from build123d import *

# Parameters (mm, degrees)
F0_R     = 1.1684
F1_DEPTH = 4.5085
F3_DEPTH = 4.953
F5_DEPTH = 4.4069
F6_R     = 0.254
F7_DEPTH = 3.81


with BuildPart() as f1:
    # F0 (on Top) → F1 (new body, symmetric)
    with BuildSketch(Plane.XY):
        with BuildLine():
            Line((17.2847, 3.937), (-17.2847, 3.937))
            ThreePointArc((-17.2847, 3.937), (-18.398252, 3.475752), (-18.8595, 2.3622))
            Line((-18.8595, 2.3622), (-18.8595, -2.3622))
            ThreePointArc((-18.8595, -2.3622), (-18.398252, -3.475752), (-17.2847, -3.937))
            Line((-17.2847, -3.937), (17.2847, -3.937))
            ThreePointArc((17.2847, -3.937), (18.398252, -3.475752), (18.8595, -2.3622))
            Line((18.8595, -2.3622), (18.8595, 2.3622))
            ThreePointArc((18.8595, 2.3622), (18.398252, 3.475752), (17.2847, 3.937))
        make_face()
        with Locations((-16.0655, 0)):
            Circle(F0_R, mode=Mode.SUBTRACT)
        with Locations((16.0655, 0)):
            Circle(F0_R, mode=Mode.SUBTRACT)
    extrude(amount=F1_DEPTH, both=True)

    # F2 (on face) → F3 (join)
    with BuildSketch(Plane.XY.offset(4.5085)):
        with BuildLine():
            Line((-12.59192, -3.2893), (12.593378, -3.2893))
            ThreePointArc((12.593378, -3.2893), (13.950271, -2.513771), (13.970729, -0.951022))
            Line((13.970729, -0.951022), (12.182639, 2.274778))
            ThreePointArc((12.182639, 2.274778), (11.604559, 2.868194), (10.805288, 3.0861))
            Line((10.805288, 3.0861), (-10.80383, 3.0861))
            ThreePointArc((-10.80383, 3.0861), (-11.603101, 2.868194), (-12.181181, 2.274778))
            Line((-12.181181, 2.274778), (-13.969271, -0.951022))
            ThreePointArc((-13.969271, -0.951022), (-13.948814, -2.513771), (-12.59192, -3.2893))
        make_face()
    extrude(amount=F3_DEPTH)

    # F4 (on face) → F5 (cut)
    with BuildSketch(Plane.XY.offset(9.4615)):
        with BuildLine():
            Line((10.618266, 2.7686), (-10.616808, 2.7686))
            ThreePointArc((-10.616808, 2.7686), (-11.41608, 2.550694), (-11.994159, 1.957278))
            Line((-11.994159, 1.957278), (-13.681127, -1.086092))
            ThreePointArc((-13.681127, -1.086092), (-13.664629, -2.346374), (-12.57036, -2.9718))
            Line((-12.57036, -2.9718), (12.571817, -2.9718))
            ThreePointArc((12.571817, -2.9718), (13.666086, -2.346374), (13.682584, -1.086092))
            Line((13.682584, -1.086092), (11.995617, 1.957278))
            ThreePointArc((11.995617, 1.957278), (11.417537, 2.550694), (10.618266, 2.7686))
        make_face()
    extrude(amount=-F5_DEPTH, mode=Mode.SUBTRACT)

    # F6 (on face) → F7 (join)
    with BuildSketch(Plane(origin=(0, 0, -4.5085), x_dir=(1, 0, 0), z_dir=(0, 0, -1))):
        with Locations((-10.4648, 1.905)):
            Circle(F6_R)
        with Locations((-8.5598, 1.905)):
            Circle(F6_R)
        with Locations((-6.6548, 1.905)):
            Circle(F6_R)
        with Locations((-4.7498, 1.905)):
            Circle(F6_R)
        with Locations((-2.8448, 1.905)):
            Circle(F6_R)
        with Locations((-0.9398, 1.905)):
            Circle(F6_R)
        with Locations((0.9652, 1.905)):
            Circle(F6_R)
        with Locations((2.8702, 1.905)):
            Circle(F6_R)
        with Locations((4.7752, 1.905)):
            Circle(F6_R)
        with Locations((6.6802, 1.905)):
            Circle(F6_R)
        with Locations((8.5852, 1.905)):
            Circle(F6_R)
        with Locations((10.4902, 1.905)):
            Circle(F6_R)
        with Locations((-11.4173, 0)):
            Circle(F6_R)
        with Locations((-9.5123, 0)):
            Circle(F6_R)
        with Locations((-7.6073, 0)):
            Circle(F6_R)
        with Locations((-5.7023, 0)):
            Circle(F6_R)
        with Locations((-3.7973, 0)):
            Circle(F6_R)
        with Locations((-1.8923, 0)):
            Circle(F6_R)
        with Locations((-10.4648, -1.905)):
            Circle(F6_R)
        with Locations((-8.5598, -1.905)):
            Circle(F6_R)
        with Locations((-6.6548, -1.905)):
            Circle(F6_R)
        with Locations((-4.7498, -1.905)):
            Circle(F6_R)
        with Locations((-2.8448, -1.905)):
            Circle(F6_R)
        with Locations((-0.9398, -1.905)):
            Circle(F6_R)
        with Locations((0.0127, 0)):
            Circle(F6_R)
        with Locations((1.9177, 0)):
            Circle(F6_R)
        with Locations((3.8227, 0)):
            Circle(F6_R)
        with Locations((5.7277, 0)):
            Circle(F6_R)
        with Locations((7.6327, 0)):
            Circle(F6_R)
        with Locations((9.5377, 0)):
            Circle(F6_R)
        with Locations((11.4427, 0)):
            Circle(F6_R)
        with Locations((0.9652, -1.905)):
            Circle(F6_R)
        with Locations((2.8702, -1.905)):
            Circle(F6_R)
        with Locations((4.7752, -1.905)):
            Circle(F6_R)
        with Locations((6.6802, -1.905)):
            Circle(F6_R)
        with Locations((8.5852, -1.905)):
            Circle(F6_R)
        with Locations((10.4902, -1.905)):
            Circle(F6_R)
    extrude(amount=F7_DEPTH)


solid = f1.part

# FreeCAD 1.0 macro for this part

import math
import FreeCAD as App
import Part
import Sketcher
from FreeCAD import Vector
Q = App.Units.Quantity

doc = App.newDocument("Part")
params = doc.addObject("Spreadsheet::Sheet", "Params")
for row, (alias, value) in enumerate([
    ("sketch1_diameter", "0.092 in"),
    ("sketch1_radius", "0.062 in"),
    ("sketch1_width", "1.361 in"),
    ("sketch1_height", "0.186 in"),
    ("pad1_length", "0.355 in"),
    ("sketch2_radius", "0.062 in"),
    ("pad2_length", "0.195 in"),
    ("sketch3_radius", "0.05 in"),
    ("sketch3_radius2", "0.0619998 in"),
    ("sketch3_radius3", "0.0619999 in"),
    ("pocket1_length", "0.1735 in"),
    ("sketch4_diameter", "0.02 in"),
    ("pad3_length", "0.15 in"),
], start=1):
    params.set(f"A{row}", alias)
    params.set(f"B{row}", "=" + value)
    params.setAlias(f"B{row}", alias)

body = doc.addObject("PartDesign::Body", "Body")

# Sketch on XY plane
sketch1 = doc.addObject("Sketcher::SketchObject", "Sketch")
body.addObject(sketch1)
sketch1.AttachmentSupport = (doc.XY_Plane, [""])
sketch1.MapMode = "FlatFace"
sketch1.addGeometry([
    Part.LineSegment(Vector(17.3, 3.9, 0), Vector(-17.3, 3.9, 0)),  # 0
    Part.ArcOfCircle(Part.Circle(Vector(-17.3, 2.4, 0), Vector(0, 0, 1), 1.6), math.radians(90), math.radians(180)),  # 1
    Part.LineSegment(Vector(-18.9, 2.4, 0), Vector(-18.9, -2.4, 0)),  # 2
    Part.ArcOfCircle(Part.Circle(Vector(-17.3, -2.4, 0), Vector(0, 0, 1), 1.6), math.radians(180), math.radians(270)),  # 3
    Part.LineSegment(Vector(-17.3, -3.9, 0), Vector(17.3, -3.9, 0)),  # 4
    Part.ArcOfCircle(Part.Circle(Vector(17.3, -2.4, 0), Vector(0, 0, 1), 1.6), math.radians(-90), math.radians(0)),  # 5
    Part.LineSegment(Vector(18.9, -2.4, 0), Vector(18.9, 2.4, 0)),  # 6
    Part.ArcOfCircle(Part.Circle(Vector(17.3, 2.4, 0), Vector(0, 0, 1), 1.6), math.radians(0), math.radians(90)),  # 7
    Part.Circle(Vector(-16.1, 0, 0), Vector(0, 0, 1), 1.2),  # 8
    Part.Circle(Vector(16.1, 0, 0), Vector(0, 0, 1), 1.2),  # 9
], False)
sketch1.addConstraint([
    Sketcher.Constraint("Tangent", 0, 2, 1, 1),
    Sketcher.Constraint("Tangent", 1, 2, 2, 1),
    Sketcher.Constraint("Tangent", 2, 2, 3, 1),
    Sketcher.Constraint("Tangent", 3, 2, 4, 1),
    Sketcher.Constraint("Tangent", 4, 2, 5, 1),
    Sketcher.Constraint("Tangent", 5, 2, 6, 1),
    Sketcher.Constraint("Tangent", 6, 2, 7, 1),
    Sketcher.Constraint("Tangent", 7, 2, 0, 1),
    Sketcher.Constraint("Horizontal", 0),
    Sketcher.Constraint("Vertical", 2),
    Sketcher.Constraint("Horizontal", 4),
    Sketcher.Constraint("Vertical", 6),
    Sketcher.Constraint("Equal", 1, 3),
    Sketcher.Constraint("Equal", 3, 5),
    Sketcher.Constraint("Equal", 5, 7),
    Sketcher.Constraint("Equal", 8, 9),
    Sketcher.Constraint("Symmetric", 1, 3, 5, 3, -1, 1),
    Sketcher.Constraint("Symmetric", 8, 3, 9, 3, -1, 1),
    Sketcher.Constraint("PointOnObject", 8, 3, -1),
    Sketcher.Constraint("Diameter", 8, Q("0.092 in")),
    Sketcher.Constraint("Radius", 1, Q("0.062 in")),
    Sketcher.Constraint("DistanceX", 0, 2, 0, 1, Q("1.361 in")),
    Sketcher.Constraint("DistanceY", 2, 2, 2, 1, Q("0.186 in")),
    Sketcher.Constraint("DistanceX", 1, 2, 8, 3, Q("0.11 in")),
])
sketch1.setExpression("Constraints[19]", "Params.sketch1_diameter")
sketch1.setExpression("Constraints[20]", "Params.sketch1_radius")
sketch1.setExpression("Constraints[21]", "Params.sketch1_width")
sketch1.setExpression("Constraints[22]", "Params.sketch1_height")
pad1 = doc.addObject("PartDesign::Pad", "Pad")
body.addObject(pad1)
pad1.Profile = sketch1
pad1.setExpression("Length", "Params.pad1_length")
pad1.Midplane = True

# Sketch on XY plane
sketch2 = doc.addObject("Sketcher::SketchObject", "Sketch001")
body.addObject(sketch2)
sketch2.AttachmentSupport = (doc.XY_Plane, [""])
sketch2.MapMode = "FlatFace"
sketch2.AttachmentOffset = App.Placement(Vector(0, 0, 0.1775 * 25.4), App.Rotation())
sketch2.addGeometry([
    Part.LineSegment(Vector(-12.6, -3.3, 0), Vector(12.6, -3.3, 0)),  # 0
    Part.ArcOfCircle(Part.Circle(Vector(12.6, -1.7, 0), Vector(0, 0, 1), 1.6), math.radians(-90), math.radians(29)),  # 1
    Part.LineSegment(Vector(14, -1, 0), Vector(12.2, 2.3, 0)),  # 2
    Part.ArcOfCircle(Part.Circle(Vector(10.8, 1.5, 0), Vector(0, 0, 1), 1.6), math.radians(29), math.radians(90)),  # 3
    Part.LineSegment(Vector(10.8, 3.1, 0), Vector(-10.8, 3.1, 0)),  # 4
    Part.ArcOfCircle(Part.Circle(Vector(-10.8, 1.5, 0), Vector(0, 0, 1), 1.6), math.radians(90), math.radians(151)),  # 5
    Part.LineSegment(Vector(-12.2, 2.3, 0), Vector(-14, -1, 0)),  # 6
    Part.ArcOfCircle(Part.Circle(Vector(-12.6, -1.7, 0), Vector(0, 0, 1), 1.6), math.radians(151), math.radians(270)),  # 7
], False)
sketch2.addConstraint([
    Sketcher.Constraint("Tangent", 0, 2, 1, 1),
    Sketcher.Constraint("Tangent", 1, 2, 2, 1),
    Sketcher.Constraint("Tangent", 2, 2, 3, 1),
    Sketcher.Constraint("Tangent", 3, 2, 4, 1),
    Sketcher.Constraint("Tangent", 4, 2, 5, 1),
    Sketcher.Constraint("Tangent", 5, 2, 6, 1),
    Sketcher.Constraint("Tangent", 6, 2, 7, 1),
    Sketcher.Constraint("Tangent", 7, 2, 0, 1),
    Sketcher.Constraint("Horizontal", 0),
    Sketcher.Constraint("Horizontal", 4),
    Sketcher.Constraint("Equal", 3, 5),
    Sketcher.Constraint("Equal", 5, 7),
    Sketcher.Constraint("Horizontal", 1, 3, 7, 3),
    Sketcher.Constraint("Horizontal", 2, 2, 5, 2),
    Sketcher.Constraint("Angle", 2, Q("118.999998 deg")),
    Sketcher.Constraint("Radius", 1, Q("0.062 in")),
    Sketcher.Constraint("DistanceY", 1, 3, 3, 3, Q("0.127 in")),
    Sketcher.Constraint("DistanceY", 1, 3, -1, 1, Q("0.0675 in")),
    Sketcher.Constraint("DistanceX", 7, 3, 0, 2, Q("25.185298 mm")),
    Sketcher.Constraint("DistanceX", -1, 1, 3, 3, Q("10.805289 mm")),
])
sketch2.setExpression("Constraints[15]", "Params.sketch2_radius")
pad2 = doc.addObject("PartDesign::Pad", "Pad001")
body.addObject(pad2)
pad2.Profile = sketch2
pad2.setExpression("Length", "Params.pad2_length")

# Sketch on XY plane
sketch3 = doc.addObject("Sketcher::SketchObject", "Sketch002")
body.addObject(sketch3)
sketch3.AttachmentSupport = (doc.XY_Plane, [""])
sketch3.MapMode = "FlatFace"
sketch3.AttachmentOffset = App.Placement(Vector(0, 0, 0.3725 * 25.4), App.Rotation())
sketch3.addGeometry([
    Part.LineSegment(Vector(10.6, 2.8, 0), Vector(-10.6, 2.8, 0)),  # 0
    Part.ArcOfCircle(Part.Circle(Vector(-10.6, 1.2, 0), Vector(0, 0, 1), 1.6), math.radians(90), math.radians(151)),  # 1
    Part.LineSegment(Vector(-12, 2, 0), Vector(-13.7, -1.1, 0)),  # 2
    Part.ArcOfCircle(Part.Circle(Vector(-12.6, -1.7, 0), Vector(0, 0, 1), 1.3), math.radians(151), math.radians(270)),  # 3
    Part.LineSegment(Vector(-12.6, -3, 0), Vector(12.6, -3, 0)),  # 4
    Part.ArcOfCircle(Part.Circle(Vector(12.6, -1.7, 0), Vector(0, 0, 1), 1.3), math.radians(-90), math.radians(29)),  # 5
    Part.LineSegment(Vector(13.7, -1.1, 0), Vector(12, 2, 0)),  # 6
    Part.ArcOfCircle(Part.Circle(Vector(10.6, 1.2, 0), Vector(0, 0, 1), 1.6), math.radians(29), math.radians(90)),  # 7
], False)
sketch3.addConstraint([
    Sketcher.Constraint("Tangent", 0, 2, 1, 1),
    Sketcher.Constraint("Coincident", 1, 2, 2, 1),
    Sketcher.Constraint("Tangent", 2, 2, 3, 1),
    Sketcher.Constraint("Tangent", 3, 2, 4, 1),
    Sketcher.Constraint("Tangent", 4, 2, 5, 1),
    Sketcher.Constraint("Tangent", 5, 2, 6, 1),
    Sketcher.Constraint("Tangent", 6, 2, 7, 1),
    Sketcher.Constraint("Tangent", 7, 2, 0, 1),
    Sketcher.Constraint("Horizontal", 0),
    Sketcher.Constraint("Horizontal", 4),
    Sketcher.Constraint("Equal", 3, 5),
    Sketcher.Constraint("Horizontal", 2, 2, 5, 2),
    Sketcher.Constraint("Horizontal", 1, 2, 6, 2),
    Sketcher.Constraint("Radius", 3, Q("0.05 in")),
    Sketcher.Constraint("Angle", 2, Q("-119.000007 deg")),
    Sketcher.Constraint("Radius", 1, Q("0.0619998 in")),
    Sketcher.Constraint("Radius", 7, Q("0.0619999 in")),
    Sketcher.Constraint("DistanceY", -1, 1, 1, 3, Q("0.0470002 in")),
    Sketcher.Constraint("DistanceY", 3, 3, -1, 1, Q("0.067 in")),
    Sketcher.Constraint("DistanceX", 0, 2, 0, 1, Q("21.235074 mm")),
    Sketcher.Constraint("DistanceX", 1, 3, -1, 1, Q("10.616811 mm")),
])
sketch3.setExpression("Constraints[13]", "Params.sketch3_radius")
sketch3.setExpression("Constraints[15]", "Params.sketch3_radius2")
sketch3.setExpression("Constraints[16]", "Params.sketch3_radius3")
pocket1 = doc.addObject("PartDesign::Pocket", "Pocket")
body.addObject(pocket1)
pocket1.Profile = sketch3
pocket1.setExpression("Length", "Params.pocket1_length")

# Sketch on XY plane
sketch4 = doc.addObject("Sketcher::SketchObject", "Sketch003")
body.addObject(sketch4)
sketch4.AttachmentSupport = (doc.XY_Plane, [""])
sketch4.MapMode = "FlatFace"
sketch4.AttachmentOffset = App.Placement(Vector(0, 0, -0.1775 * 25.4), App.Rotation())
sketch4.addGeometry([
    Part.Circle(Vector(-10.46, -1.91, 0), Vector(0, 0, 1), 0.25),  # 0
    Part.Circle(Vector(-8.56, -1.91, 0), Vector(0, 0, 1), 0.25),  # 1
    Part.Circle(Vector(-6.65, -1.91, 0), Vector(0, 0, 1), 0.25),  # 2
    Part.Circle(Vector(-4.75, -1.91, 0), Vector(0, 0, 1), 0.25),  # 3
    Part.Circle(Vector(-2.84, -1.91, 0), Vector(0, 0, 1), 0.25),  # 4
    Part.Circle(Vector(-0.94, -1.91, 0), Vector(0, 0, 1), 0.25),  # 5
    Part.Circle(Vector(0.97, -1.91, 0), Vector(0, 0, 1), 0.25),  # 6
    Part.Circle(Vector(2.87, -1.91, 0), Vector(0, 0, 1), 0.25),  # 7
    Part.Circle(Vector(4.78, -1.91, 0), Vector(0, 0, 1), 0.25),  # 8
    Part.Circle(Vector(6.68, -1.91, 0), Vector(0, 0, 1), 0.25),  # 9
    Part.Circle(Vector(8.59, -1.91, 0), Vector(0, 0, 1), 0.25),  # 10
    Part.Circle(Vector(10.49, -1.91, 0), Vector(0, 0, 1), 0.25),  # 11
    Part.Circle(Vector(-11.42, 0, 0), Vector(0, 0, 1), 0.25),  # 12
    Part.Circle(Vector(-9.51, 0, 0), Vector(0, 0, 1), 0.25),  # 13
    Part.Circle(Vector(-7.61, 0, 0), Vector(0, 0, 1), 0.25),  # 14
    Part.Circle(Vector(-5.7, 0, 0), Vector(0, 0, 1), 0.25),  # 15
    Part.Circle(Vector(-3.8, 0, 0), Vector(0, 0, 1), 0.25),  # 16
    Part.Circle(Vector(-1.89, 0, 0), Vector(0, 0, 1), 0.25),  # 17
    Part.Circle(Vector(-10.46, 1.91, 0), Vector(0, 0, 1), 0.25),  # 18
    Part.Circle(Vector(-8.56, 1.91, 0), Vector(0, 0, 1), 0.25),  # 19
    Part.Circle(Vector(-6.65, 1.91, 0), Vector(0, 0, 1), 0.25),  # 20
    Part.Circle(Vector(-4.75, 1.91, 0), Vector(0, 0, 1), 0.25),  # 21
    Part.Circle(Vector(-2.84, 1.91, 0), Vector(0, 0, 1), 0.25),  # 22
    Part.Circle(Vector(-0.94, 1.91, 0), Vector(0, 0, 1), 0.25),  # 23
    Part.Circle(Vector(0.01, 0, 0), Vector(0, 0, 1), 0.25),  # 24
    Part.Circle(Vector(1.92, 0, 0), Vector(0, 0, 1), 0.25),  # 25
    Part.Circle(Vector(3.82, 0, 0), Vector(0, 0, 1), 0.25),  # 26
    Part.Circle(Vector(5.73, 0, 0), Vector(0, 0, 1), 0.25),  # 27
    Part.Circle(Vector(7.63, 0, 0), Vector(0, 0, 1), 0.25),  # 28
    Part.Circle(Vector(9.54, 0, 0), Vector(0, 0, 1), 0.25),  # 29
    Part.Circle(Vector(11.44, 0, 0), Vector(0, 0, 1), 0.25),  # 30
    Part.Circle(Vector(0.97, 1.91, 0), Vector(0, 0, 1), 0.25),  # 31
    Part.Circle(Vector(2.87, 1.91, 0), Vector(0, 0, 1), 0.25),  # 32
    Part.Circle(Vector(4.78, 1.91, 0), Vector(0, 0, 1), 0.25),  # 33
    Part.Circle(Vector(6.68, 1.91, 0), Vector(0, 0, 1), 0.25),  # 34
    Part.Circle(Vector(8.59, 1.91, 0), Vector(0, 0, 1), 0.25),  # 35
    Part.Circle(Vector(10.49, 1.91, 0), Vector(0, 0, 1), 0.25),  # 36
], False)
sketch4.addConstraint([
    Sketcher.Constraint("Equal", 0, 1),
    Sketcher.Constraint("Equal", 1, 2),
    Sketcher.Constraint("Equal", 2, 3),
    Sketcher.Constraint("Equal", 3, 4),
    Sketcher.Constraint("Equal", 4, 5),
    Sketcher.Constraint("Equal", 5, 6),
    Sketcher.Constraint("Equal", 6, 7),
    Sketcher.Constraint("Equal", 7, 8),
    Sketcher.Constraint("Equal", 8, 9),
    Sketcher.Constraint("Equal", 9, 10),
    Sketcher.Constraint("Equal", 10, 11),
    Sketcher.Constraint("Equal", 11, 12),
    Sketcher.Constraint("Equal", 12, 13),
    Sketcher.Constraint("Equal", 13, 14),
    Sketcher.Constraint("Equal", 14, 15),
    Sketcher.Constraint("Equal", 15, 16),
    Sketcher.Constraint("Equal", 16, 17),
    Sketcher.Constraint("Equal", 17, 18),
    Sketcher.Constraint("Equal", 18, 19),
    Sketcher.Constraint("Equal", 19, 20),
    Sketcher.Constraint("Equal", 20, 21),
    Sketcher.Constraint("Equal", 21, 22),
    Sketcher.Constraint("Equal", 22, 23),
    Sketcher.Constraint("Equal", 23, 24),
    Sketcher.Constraint("Equal", 24, 25),
    Sketcher.Constraint("Equal", 25, 26),
    Sketcher.Constraint("Equal", 26, 27),
    Sketcher.Constraint("Equal", 27, 28),
    Sketcher.Constraint("Equal", 28, 29),
    Sketcher.Constraint("Equal", 29, 30),
    Sketcher.Constraint("Equal", 30, 31),
    Sketcher.Constraint("Equal", 31, 32),
    Sketcher.Constraint("Equal", 32, 33),
    Sketcher.Constraint("Equal", 33, 34),
    Sketcher.Constraint("Equal", 34, 35),
    Sketcher.Constraint("Equal", 35, 36),
    Sketcher.Constraint("Symmetric", 0, 3, 18, 3, -1),
    Sketcher.Constraint("Symmetric", 1, 3, 19, 3, -1),
    Sketcher.Constraint("Symmetric", 2, 3, 20, 3, -1),
    Sketcher.Constraint("Symmetric", 3, 3, 21, 3, -1),
    Sketcher.Constraint("Symmetric", 4, 3, 22, 3, -1),
    Sketcher.Constraint("Symmetric", 5, 3, 23, 3, -1),
    Sketcher.Constraint("Symmetric", 6, 3, 31, 3, -1),
    Sketcher.Constraint("Symmetric", 7, 3, 32, 3, -1),
    Sketcher.Constraint("Symmetric", 8, 3, 33, 3, -1),
    Sketcher.Constraint("Symmetric", 9, 3, 34, 3, -1),
    Sketcher.Constraint("Symmetric", 10, 3, 35, 3, -1),
    Sketcher.Constraint("Symmetric", 11, 3, 36, 3, -1),
    Sketcher.Constraint("PointOnObject", 12, 3, -1),
    Sketcher.Constraint("PointOnObject", 13, 3, -1),
    Sketcher.Constraint("PointOnObject", 14, 3, -1),
    Sketcher.Constraint("PointOnObject", 15, 3, -1),
    Sketcher.Constraint("PointOnObject", 16, 3, -1),
    Sketcher.Constraint("PointOnObject", 17, 3, -1),
    Sketcher.Constraint("PointOnObject", 24, 3, -1),
    Sketcher.Constraint("PointOnObject", 25, 3, -1),
    Sketcher.Constraint("PointOnObject", 26, 3, -1),
    Sketcher.Constraint("PointOnObject", 27, 3, -1),
    Sketcher.Constraint("PointOnObject", 28, 3, -1),
    Sketcher.Constraint("PointOnObject", 29, 3, -1),
    Sketcher.Constraint("PointOnObject", 30, 3, -1),
    Sketcher.Constraint("Horizontal", 0, 3, 1, 3),
    Sketcher.Constraint("Horizontal", 1, 3, 2, 3),
    Sketcher.Constraint("Horizontal", 2, 3, 3, 3),
    Sketcher.Constraint("Horizontal", 3, 3, 4, 3),
    Sketcher.Constraint("Horizontal", 4, 3, 5, 3),
    Sketcher.Constraint("Horizontal", 5, 3, 6, 3),
    Sketcher.Constraint("Horizontal", 6, 3, 7, 3),
    Sketcher.Constraint("Horizontal", 7, 3, 8, 3),
    Sketcher.Constraint("Horizontal", 8, 3, 9, 3),
    Sketcher.Constraint("Horizontal", 9, 3, 10, 3),
    Sketcher.Constraint("Horizontal", 10, 3, 11, 3),
    Sketcher.Constraint("Diameter", 0, Q("0.02 in")),
    Sketcher.Constraint("DistanceX", 0, 3, 4, 3, Q("0.3 in")),
    Sketcher.Constraint("DistanceX", 1, 3, 5, 3, Q("0.3 in")),
    Sketcher.Constraint("DistanceX", 2, 3, 6, 3, Q("0.3 in")),
    Sketcher.Constraint("DistanceX", 3, 3, 7, 3, Q("0.3 in")),
    Sketcher.Constraint("DistanceX", 4, 3, 8, 3, Q("0.3 in")),
    Sketcher.Constraint("DistanceX", 5, 3, 9, 3, Q("0.3 in")),
    Sketcher.Constraint("DistanceX", 6, 3, 10, 3, Q("0.3 in")),
    Sketcher.Constraint("DistanceX", 7, 3, 11, 3, Q("0.3 in")),
    Sketcher.Constraint("DistanceX", 0, 3, 2, 3, Q("0.15 in")),
    Sketcher.Constraint("DistanceX", 1, 3, 3, 3, Q("0.15 in")),
    Sketcher.Constraint("DistanceY", 0, 3, 18, 3, Q("0.15 in")),
    Sketcher.Constraint("DistanceX", 27, 3, 29, 3, Q("0.15 in")),
    Sketcher.Constraint("DistanceX", 28, 3, 30, 3, Q("0.15 in")),
    Sketcher.Constraint("DistanceX", 0, 3, -1, 1, Q("0.412 in")),
    Sketcher.Constraint("DistanceX", 1, 3, -1, 1, Q("0.337 in")),
    Sketcher.Constraint("DistanceX", 12, 3, 2, 3, Q("0.1875 in")),
    Sketcher.Constraint("DistanceX", 12, 3, 13, 3, Q("0.075 in")),
    Sketcher.Constraint("DistanceX", 13, 3, 14, 3, Q("0.075 in")),
    Sketcher.Constraint("DistanceX", 14, 3, 15, 3, Q("0.075 in")),
    Sketcher.Constraint("DistanceX", 15, 3, 16, 3, Q("0.075 in")),
    Sketcher.Constraint("DistanceX", 16, 3, 17, 3, Q("0.075 in")),
    Sketcher.Constraint("DistanceX", 17, 3, 24, 3, Q("0.075 in")),
    Sketcher.Constraint("DistanceX", 24, 3, 25, 3, Q("0.075 in")),
    Sketcher.Constraint("DistanceX", 25, 3, 26, 3, Q("0.075 in")),
    Sketcher.Constraint("DistanceX", 26, 3, 27, 3, Q("0.075 in")),
    Sketcher.Constraint("DistanceX", 27, 3, 28, 3, Q("0.075 in")),
])
sketch4.setExpression("Constraints[72]", "Params.sketch4_diameter")
pad3 = doc.addObject("PartDesign::Pad", "Pad002")
body.addObject(pad3)
pad3.Profile = sketch4
pad3.setExpression("Length", "Params.pad3_length")
pad3.Reversed = True

doc.recompute()
